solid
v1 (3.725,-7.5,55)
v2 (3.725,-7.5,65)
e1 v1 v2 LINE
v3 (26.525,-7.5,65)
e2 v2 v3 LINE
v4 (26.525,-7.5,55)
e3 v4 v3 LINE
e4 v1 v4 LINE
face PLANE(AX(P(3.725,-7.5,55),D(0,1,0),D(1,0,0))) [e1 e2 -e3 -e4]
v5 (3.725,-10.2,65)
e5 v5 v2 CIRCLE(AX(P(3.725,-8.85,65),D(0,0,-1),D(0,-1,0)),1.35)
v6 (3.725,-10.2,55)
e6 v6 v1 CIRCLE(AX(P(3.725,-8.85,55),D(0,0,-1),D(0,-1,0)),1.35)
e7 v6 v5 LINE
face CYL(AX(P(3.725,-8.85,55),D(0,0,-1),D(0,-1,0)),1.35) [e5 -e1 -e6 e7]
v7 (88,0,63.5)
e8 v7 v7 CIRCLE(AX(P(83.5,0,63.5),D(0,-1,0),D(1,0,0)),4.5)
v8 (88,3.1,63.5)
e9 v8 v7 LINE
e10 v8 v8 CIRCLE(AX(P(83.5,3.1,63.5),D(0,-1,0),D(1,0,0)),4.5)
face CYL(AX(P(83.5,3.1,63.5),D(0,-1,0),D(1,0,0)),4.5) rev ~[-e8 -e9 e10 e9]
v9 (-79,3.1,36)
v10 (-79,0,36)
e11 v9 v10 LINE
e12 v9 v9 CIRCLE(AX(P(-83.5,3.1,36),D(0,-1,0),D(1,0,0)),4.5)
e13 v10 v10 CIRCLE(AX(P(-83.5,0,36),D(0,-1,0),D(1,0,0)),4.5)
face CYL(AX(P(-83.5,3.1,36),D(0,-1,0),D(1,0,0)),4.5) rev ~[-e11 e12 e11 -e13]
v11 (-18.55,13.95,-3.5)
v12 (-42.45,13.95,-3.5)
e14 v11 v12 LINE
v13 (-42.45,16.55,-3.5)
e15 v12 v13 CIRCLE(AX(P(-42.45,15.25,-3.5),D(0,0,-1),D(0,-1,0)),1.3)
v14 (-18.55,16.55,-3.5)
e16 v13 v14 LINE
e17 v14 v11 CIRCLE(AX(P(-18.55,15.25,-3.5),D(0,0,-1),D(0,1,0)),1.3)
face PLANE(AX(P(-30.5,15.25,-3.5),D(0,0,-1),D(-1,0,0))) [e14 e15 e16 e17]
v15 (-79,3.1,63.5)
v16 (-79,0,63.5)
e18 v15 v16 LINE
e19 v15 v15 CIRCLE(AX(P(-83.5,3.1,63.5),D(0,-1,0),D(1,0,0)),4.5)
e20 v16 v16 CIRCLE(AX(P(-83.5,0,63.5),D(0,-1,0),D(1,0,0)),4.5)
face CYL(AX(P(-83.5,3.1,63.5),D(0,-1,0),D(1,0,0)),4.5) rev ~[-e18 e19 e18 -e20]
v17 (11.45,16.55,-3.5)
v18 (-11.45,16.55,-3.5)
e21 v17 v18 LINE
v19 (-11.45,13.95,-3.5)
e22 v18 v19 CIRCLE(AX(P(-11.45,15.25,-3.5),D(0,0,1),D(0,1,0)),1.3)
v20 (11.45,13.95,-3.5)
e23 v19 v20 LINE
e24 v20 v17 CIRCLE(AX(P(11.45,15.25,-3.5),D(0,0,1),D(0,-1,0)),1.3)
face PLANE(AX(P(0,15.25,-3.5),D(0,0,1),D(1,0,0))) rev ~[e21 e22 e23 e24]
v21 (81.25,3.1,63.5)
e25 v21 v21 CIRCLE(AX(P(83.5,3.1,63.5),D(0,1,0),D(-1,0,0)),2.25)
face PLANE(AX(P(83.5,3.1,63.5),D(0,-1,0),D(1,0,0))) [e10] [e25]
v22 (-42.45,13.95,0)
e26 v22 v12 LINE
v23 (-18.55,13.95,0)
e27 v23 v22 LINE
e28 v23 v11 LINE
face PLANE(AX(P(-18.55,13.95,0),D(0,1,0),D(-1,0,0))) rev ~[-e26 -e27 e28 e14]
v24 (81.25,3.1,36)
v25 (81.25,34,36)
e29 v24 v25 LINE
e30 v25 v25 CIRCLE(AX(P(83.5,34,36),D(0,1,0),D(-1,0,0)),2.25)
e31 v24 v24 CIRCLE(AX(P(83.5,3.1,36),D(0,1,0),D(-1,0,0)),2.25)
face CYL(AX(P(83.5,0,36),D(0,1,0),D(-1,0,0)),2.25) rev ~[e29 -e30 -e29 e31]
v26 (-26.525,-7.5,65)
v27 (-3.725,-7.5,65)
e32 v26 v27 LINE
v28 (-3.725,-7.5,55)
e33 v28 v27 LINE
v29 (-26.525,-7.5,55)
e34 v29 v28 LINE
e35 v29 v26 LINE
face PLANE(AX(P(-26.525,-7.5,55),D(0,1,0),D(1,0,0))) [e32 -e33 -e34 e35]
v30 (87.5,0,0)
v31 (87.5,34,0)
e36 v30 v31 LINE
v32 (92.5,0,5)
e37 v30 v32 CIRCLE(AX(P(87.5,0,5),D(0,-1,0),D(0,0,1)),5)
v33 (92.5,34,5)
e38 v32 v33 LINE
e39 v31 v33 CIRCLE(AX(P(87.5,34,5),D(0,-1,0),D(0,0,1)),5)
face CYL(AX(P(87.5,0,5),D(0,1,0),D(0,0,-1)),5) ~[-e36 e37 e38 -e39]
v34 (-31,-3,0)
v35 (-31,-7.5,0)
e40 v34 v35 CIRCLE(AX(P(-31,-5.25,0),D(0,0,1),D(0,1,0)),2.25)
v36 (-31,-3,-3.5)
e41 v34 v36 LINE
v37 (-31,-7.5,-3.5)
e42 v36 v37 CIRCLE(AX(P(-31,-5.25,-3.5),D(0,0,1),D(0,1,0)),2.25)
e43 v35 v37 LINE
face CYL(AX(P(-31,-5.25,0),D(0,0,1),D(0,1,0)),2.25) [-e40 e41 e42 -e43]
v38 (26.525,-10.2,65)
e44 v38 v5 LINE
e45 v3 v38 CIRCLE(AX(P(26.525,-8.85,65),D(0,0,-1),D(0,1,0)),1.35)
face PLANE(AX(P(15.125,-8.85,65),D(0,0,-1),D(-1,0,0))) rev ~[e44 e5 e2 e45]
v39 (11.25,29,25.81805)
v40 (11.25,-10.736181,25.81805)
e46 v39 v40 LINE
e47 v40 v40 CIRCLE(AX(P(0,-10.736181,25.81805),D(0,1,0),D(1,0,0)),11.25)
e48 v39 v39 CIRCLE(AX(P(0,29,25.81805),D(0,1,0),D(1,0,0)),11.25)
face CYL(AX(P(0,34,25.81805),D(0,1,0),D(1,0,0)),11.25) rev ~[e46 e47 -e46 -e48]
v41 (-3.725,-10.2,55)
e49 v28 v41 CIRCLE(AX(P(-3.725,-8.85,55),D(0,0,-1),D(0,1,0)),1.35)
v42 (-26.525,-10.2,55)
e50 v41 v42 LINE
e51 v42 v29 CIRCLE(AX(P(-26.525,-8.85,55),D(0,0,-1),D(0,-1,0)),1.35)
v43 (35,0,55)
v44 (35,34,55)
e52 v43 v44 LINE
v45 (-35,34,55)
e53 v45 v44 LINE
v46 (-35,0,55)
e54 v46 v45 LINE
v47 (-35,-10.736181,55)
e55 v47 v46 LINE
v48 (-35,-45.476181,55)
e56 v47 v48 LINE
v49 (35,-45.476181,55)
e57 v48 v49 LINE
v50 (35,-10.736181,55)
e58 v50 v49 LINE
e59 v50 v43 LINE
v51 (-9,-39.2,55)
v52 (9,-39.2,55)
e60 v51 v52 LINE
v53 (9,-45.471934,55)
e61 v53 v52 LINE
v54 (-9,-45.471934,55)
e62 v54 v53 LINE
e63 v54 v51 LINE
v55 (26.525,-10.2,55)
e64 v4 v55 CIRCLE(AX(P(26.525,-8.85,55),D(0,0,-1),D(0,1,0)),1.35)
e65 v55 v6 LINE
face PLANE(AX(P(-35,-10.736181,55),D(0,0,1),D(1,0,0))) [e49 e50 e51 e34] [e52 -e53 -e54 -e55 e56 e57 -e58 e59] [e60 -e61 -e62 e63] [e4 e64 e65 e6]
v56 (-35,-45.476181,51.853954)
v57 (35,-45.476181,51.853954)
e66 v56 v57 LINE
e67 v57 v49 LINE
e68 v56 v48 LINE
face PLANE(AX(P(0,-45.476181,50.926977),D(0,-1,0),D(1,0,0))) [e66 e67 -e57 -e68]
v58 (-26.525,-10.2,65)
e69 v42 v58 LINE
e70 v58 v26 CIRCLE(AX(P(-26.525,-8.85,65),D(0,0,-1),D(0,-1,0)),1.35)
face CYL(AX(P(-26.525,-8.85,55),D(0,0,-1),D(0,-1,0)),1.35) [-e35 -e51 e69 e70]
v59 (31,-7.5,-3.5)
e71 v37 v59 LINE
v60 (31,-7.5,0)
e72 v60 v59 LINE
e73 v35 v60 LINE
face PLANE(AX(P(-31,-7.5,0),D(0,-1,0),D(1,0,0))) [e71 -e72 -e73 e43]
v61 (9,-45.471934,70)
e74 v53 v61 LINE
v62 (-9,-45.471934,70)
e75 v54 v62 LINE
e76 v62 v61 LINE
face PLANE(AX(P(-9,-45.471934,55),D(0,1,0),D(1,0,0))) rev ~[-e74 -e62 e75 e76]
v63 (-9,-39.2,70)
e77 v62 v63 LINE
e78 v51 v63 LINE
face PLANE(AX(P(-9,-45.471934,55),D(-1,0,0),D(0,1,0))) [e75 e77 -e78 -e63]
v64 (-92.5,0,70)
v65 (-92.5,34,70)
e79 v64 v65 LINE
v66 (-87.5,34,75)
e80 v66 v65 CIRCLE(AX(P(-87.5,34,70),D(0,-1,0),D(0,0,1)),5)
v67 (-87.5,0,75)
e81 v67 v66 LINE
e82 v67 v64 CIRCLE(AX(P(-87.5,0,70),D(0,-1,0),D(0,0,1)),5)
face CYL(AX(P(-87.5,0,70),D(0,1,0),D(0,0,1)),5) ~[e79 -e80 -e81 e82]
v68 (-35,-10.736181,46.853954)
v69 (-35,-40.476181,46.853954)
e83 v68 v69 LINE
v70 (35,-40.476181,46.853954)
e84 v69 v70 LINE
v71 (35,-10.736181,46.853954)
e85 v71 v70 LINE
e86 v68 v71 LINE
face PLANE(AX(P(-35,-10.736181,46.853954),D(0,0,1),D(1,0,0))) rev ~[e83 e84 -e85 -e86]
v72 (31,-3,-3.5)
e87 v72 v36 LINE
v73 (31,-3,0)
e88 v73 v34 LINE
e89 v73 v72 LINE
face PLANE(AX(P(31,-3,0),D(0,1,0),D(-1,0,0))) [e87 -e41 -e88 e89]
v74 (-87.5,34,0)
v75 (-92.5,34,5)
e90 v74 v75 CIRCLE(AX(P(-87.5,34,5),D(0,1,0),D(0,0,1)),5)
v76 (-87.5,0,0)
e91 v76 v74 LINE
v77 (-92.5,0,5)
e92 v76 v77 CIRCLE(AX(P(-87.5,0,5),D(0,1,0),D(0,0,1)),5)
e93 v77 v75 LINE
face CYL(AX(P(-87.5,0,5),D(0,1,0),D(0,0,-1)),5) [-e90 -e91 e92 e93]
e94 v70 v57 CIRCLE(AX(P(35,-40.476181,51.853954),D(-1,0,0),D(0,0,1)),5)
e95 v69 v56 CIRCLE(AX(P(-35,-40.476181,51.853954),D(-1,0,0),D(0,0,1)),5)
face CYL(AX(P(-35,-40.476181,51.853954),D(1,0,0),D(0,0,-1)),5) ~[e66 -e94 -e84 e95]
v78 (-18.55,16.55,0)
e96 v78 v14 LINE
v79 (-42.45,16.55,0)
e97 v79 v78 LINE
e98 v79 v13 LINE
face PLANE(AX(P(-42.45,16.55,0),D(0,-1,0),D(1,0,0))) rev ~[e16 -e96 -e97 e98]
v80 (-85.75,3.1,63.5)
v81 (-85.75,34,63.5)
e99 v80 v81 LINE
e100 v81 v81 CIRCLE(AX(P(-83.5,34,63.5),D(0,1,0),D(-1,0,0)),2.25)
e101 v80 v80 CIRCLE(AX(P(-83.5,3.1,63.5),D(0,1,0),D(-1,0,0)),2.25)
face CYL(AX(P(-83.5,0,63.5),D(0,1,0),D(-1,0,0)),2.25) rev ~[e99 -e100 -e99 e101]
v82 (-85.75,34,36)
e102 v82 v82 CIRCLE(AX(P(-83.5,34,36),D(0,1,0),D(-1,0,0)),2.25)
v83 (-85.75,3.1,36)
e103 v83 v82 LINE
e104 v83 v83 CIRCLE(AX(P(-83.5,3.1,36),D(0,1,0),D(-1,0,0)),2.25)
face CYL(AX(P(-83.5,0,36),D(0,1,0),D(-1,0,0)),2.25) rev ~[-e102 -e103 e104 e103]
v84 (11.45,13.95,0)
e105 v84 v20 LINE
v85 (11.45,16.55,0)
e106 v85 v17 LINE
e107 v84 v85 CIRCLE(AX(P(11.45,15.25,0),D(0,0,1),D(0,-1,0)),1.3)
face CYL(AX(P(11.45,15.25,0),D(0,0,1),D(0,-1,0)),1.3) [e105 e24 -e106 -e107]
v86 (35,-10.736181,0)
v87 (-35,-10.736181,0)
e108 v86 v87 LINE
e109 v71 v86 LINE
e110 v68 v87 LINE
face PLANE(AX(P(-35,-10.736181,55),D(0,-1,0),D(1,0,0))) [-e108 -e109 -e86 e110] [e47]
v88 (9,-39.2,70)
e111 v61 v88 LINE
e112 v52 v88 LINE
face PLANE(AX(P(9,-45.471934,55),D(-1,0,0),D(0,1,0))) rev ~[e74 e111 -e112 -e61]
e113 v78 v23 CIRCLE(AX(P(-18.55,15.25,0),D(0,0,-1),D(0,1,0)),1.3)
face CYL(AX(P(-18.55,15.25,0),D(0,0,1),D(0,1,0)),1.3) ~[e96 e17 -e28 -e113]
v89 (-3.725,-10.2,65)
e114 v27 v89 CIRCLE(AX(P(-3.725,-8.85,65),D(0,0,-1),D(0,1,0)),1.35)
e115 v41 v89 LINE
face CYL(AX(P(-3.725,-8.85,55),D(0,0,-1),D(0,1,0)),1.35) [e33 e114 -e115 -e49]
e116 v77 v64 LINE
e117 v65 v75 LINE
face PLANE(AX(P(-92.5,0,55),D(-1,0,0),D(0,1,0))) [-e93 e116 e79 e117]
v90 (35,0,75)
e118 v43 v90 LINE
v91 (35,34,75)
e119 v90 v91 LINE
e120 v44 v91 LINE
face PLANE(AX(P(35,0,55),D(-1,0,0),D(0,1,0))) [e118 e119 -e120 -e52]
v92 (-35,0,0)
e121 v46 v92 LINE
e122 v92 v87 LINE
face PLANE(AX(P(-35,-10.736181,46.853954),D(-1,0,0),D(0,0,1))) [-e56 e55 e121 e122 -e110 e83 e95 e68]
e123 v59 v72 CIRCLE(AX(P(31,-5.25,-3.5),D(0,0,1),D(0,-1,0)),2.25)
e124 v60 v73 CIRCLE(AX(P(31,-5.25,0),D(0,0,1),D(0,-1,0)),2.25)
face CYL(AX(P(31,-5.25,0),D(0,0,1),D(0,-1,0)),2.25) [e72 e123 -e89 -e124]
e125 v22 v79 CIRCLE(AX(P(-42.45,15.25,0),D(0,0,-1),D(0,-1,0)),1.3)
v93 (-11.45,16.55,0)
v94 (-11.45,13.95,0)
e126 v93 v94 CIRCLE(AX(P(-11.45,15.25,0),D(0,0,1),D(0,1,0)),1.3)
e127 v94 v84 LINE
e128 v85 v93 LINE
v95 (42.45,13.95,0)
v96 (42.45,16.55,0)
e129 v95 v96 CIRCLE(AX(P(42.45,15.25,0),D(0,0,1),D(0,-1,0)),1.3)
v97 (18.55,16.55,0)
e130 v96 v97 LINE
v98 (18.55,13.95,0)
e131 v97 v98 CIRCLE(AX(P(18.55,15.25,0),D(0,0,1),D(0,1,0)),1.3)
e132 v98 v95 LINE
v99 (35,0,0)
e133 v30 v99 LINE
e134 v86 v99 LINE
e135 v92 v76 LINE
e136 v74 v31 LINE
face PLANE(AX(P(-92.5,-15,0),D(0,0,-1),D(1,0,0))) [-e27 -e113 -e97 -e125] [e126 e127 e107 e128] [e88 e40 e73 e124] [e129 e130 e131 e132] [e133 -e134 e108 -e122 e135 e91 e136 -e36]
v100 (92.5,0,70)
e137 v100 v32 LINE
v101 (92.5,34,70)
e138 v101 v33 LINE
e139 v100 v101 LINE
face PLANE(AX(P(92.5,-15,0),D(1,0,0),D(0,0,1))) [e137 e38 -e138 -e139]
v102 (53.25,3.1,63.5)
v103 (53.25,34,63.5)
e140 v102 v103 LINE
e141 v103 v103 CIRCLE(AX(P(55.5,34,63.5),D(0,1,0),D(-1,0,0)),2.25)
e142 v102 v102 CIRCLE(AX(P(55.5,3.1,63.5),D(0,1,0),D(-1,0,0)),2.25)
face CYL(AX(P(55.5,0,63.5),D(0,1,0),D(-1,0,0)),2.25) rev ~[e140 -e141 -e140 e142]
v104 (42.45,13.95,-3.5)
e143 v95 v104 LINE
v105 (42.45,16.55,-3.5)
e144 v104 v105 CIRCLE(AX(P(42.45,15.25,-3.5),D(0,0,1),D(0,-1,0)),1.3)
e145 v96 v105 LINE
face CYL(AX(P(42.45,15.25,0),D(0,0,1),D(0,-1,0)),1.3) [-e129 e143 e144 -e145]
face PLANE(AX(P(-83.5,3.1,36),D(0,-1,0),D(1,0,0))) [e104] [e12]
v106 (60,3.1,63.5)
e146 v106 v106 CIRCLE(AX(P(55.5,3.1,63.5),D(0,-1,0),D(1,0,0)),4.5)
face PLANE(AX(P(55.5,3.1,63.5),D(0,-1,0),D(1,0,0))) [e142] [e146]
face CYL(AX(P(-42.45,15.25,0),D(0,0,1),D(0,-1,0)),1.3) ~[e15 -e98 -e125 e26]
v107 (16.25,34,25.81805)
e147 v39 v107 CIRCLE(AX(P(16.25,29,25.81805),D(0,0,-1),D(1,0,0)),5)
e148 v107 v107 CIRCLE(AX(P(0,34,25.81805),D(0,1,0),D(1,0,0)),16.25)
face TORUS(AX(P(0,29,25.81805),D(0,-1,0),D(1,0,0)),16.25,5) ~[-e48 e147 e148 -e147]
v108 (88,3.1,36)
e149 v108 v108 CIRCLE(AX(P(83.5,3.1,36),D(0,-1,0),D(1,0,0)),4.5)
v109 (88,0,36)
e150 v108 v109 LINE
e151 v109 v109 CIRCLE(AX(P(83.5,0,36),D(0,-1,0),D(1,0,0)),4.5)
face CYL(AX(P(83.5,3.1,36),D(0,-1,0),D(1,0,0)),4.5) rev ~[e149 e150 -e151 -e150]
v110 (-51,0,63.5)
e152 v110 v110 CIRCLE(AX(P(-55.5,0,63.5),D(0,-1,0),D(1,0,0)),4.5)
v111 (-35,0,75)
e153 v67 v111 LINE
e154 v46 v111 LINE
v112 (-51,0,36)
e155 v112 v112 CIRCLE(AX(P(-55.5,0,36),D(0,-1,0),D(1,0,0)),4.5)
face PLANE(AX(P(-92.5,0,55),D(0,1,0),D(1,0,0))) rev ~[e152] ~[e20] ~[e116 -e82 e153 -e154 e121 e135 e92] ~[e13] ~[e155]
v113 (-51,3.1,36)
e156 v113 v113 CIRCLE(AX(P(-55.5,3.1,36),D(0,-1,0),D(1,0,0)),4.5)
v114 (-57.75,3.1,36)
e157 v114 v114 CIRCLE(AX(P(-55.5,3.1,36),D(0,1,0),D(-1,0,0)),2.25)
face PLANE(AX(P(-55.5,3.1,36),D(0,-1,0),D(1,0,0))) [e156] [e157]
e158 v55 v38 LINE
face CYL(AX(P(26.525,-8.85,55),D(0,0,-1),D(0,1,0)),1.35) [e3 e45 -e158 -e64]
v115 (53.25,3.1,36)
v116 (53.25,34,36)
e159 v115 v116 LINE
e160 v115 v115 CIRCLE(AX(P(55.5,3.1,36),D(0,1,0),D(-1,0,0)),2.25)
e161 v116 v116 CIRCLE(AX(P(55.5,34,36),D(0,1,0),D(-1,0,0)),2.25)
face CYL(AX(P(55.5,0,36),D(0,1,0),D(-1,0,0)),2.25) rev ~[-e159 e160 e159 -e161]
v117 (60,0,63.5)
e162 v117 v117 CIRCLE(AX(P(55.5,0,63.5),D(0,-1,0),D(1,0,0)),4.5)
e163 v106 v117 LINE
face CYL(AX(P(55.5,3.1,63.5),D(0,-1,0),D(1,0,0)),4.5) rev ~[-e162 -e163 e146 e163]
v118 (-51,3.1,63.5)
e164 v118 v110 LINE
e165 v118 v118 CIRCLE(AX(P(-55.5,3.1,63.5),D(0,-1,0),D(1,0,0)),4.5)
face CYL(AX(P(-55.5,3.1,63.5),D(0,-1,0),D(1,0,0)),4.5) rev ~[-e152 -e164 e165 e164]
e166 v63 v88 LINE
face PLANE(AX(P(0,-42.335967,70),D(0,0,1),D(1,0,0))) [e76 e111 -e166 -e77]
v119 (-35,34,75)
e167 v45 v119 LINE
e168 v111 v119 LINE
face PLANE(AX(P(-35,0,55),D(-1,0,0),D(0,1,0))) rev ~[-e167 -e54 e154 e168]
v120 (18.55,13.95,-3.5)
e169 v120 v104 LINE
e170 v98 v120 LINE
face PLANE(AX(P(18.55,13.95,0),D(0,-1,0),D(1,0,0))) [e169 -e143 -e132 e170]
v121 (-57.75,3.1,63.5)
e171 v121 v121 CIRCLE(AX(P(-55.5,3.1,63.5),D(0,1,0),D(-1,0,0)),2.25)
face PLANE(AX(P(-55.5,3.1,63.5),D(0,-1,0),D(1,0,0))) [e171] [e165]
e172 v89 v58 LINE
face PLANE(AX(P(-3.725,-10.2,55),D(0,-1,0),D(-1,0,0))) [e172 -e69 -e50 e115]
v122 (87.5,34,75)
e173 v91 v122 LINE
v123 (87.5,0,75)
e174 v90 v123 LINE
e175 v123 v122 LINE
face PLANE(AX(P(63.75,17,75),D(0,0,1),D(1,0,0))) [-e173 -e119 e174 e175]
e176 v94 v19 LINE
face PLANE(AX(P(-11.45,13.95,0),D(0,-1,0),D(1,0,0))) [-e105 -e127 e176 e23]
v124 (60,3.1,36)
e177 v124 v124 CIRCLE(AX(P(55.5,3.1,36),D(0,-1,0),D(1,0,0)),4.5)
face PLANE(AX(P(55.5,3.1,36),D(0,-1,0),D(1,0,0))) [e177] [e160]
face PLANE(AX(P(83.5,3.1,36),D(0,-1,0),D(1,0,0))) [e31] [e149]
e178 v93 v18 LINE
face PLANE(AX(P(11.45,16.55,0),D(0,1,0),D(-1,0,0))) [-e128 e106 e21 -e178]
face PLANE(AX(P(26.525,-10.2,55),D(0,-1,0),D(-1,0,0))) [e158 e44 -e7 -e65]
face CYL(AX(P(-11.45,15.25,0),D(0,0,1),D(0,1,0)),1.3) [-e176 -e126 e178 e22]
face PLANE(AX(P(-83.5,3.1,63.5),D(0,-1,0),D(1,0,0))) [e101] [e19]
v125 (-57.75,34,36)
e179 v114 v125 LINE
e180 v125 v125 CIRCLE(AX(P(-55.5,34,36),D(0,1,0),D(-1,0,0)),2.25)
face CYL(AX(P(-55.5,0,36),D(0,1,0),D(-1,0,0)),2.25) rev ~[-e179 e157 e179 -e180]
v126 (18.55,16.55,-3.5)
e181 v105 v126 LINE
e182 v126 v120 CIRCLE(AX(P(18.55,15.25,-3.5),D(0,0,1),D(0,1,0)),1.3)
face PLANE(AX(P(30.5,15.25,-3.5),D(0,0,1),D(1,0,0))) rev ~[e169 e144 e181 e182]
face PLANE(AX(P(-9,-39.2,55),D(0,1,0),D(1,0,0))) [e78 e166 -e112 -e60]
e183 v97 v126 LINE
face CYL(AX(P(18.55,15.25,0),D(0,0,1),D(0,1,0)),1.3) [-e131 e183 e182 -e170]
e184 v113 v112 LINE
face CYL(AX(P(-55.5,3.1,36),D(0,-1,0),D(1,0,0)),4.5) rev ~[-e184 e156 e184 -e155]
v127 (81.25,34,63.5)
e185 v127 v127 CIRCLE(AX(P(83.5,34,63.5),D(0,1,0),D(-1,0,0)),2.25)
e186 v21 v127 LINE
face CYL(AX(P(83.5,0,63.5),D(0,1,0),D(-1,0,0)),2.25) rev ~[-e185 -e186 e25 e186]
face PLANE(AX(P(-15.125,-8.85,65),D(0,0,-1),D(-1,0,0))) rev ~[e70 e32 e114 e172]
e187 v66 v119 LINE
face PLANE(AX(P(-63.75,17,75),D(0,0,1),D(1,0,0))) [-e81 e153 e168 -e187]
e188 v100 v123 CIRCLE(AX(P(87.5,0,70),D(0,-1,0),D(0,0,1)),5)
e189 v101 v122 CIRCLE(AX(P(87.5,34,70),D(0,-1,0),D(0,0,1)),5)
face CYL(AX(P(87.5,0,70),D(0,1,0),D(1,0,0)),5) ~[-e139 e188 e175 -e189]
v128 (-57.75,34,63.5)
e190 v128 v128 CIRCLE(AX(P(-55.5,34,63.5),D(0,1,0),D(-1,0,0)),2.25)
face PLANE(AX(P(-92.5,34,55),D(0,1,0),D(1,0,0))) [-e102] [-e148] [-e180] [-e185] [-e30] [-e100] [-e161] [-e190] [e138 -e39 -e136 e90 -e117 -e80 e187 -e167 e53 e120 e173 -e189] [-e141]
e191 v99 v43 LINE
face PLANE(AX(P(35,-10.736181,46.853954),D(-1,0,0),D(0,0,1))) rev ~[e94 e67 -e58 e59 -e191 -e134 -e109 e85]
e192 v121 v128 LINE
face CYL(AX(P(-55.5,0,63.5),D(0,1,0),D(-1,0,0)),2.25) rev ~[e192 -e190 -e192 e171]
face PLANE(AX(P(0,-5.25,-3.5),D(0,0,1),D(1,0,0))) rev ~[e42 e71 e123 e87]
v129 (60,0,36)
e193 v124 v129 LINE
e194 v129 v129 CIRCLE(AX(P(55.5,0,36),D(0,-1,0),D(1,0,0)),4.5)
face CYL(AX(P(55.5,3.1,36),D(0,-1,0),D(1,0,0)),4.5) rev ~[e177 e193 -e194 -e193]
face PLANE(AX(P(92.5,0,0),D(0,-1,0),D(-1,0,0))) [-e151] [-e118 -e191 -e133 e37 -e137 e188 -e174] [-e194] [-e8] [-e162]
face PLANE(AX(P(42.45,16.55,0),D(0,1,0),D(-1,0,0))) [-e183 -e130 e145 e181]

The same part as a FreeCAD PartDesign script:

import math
import FreeCAD as App
import Part
import Sketcher
from FreeCAD import Vector
Q = App.Units.Quantity


def edges_at(feature, points):
    """Names of the edges that pass closest to the given points."""
    edges = feature.Shape.Edges
    near = lambda p: min(range(len(edges)), key=lambda i: edges[i].distToShape(Part.Vertex(*p))[0])
    return sorted({f"Edge{near(p) + 1}" for p in points})


def add_polygon(sketch, points):
    """Adds a closed chain of lines whose ends are joined by coincident constraints."""
    first, n = sketch.GeometryCount, len(points)
    for a, b in zip(points, points[1:] + points[:1]):
        sketch.addGeometry(Part.LineSegment(App.Vector(*a, 0), App.Vector(*b, 0)), False)
    for i in range(n):
        sketch.addConstraint(Sketcher.Constraint("Coincident", first + i, 2, first + (i + 1) % n, 1))

doc = App.newDocument("Part")
params = doc.addObject("Spreadsheet::Sheet", "Params")
for row, (alias, value) in enumerate([
    ("sketch1_width", "185 mm"),
    ("sketch1_height", "55 mm"),
    ("pad1_length", "49 mm"),
    ("sketch2_radius", "1.35 mm"),
    ("sketch2_width", "22.8 mm"),
    ("pad2_length", "10 mm"),
    ("sketch3_height", "15 mm"),
    ("sketch3_width", "57.5 mm"),
    ("sketch4_height", "15 mm"),
    ("sketch4_width", "57.5 mm"),
    ("sketch5_radius", "1.35 mm"),
    ("sketch5_width", "22.8 mm"),
    ("pad3_length", "10 mm"),
    ("sketch6_radius", "1.3 mm"),
    ("sketch6_width", "22.9 mm"),
    ("pad4_length", "3.5 mm"),
    ("sketch7_width", "62 mm"),
    ("sketch7_radius", "2.25 mm"),
    ("pad5_length", "3.5 mm"),
    ("sketch8_radius", "1.3 mm"),
    ("sketch8_width", "23.9 mm"),
    ("pad6_length", "3.5 mm"),
    ("sketch9_width", "70 mm"),
    ("sketch10_height", "34 mm"),
    ("sketch10_width", "57.5 mm"),
    ("pad7_length", "20 mm"),
    ("sketch11_diameter", "4.5 mm"),
    ("hole_diameter", "4.5 mm"),
    ("hole_cbore_diameter", "9 mm"),
    ("hole_cbore_depth", "3.1 mm"),
    ("sketch12_width", "70 mm"),
    ("pad8_length", "34.74 mm"),
    ("sketch13_width", "18 mm"),
    ("pad9_length", "15 mm"),
    ("fillet_radius", "5 mm"),
    ("sketch14_diameter", "22.5 mm"),
    ("fillet2_radius", "5 mm"),
], start=1):
    params.set(f"A{row}", alias)
    params.set(f"B{row}", "=" + value)
    params.setAlias(f"B{row}", alias)

body = doc.addObject("PartDesign::Body", "Body")

# Sketch on XZ plane
sketch1 = body.newObject("Sketcher::SketchObject", "Sketch")
sketch1.AttachmentSupport = (doc.getObject("XZ_Plane"), [""])
sketch1.MapMode = "FlatFace"
sketch1.AttachmentOffset = App.Placement(Vector(0, 0, 15), App.Rotation())
add_polygon(sketch1, [(-92, 55), (-92, 0), (92, 0), (92, 55)])  # lines 0-3
sketch1.addConstraint(Sketcher.Constraint("Vertical", 0))
sketch1.addConstraint(Sketcher.Constraint("Horizontal", 1))
sketch1.addConstraint(Sketcher.Constraint("Vertical", 2))
sketch1.addConstraint(Sketcher.Constraint("Horizontal", 3))
sketch1.addConstraint(Sketcher.Constraint("Symmetric", 0, 2, 1, 2, -1, 1))
sketch1.addConstraint(Sketcher.Constraint("DistanceX", 1, 1, 1, 2, Q("185 mm")))
sketch1.addConstraint(Sketcher.Constraint("DistanceY", 0, 2, 0, 1, Q("55 mm")))
sketch1.setExpression("Constraints[9]", "Params.sketch1_width")
sketch1.setExpression("Constraints[10]", "Params.sketch1_height")
pad1 = body.newObject("PartDesign::Pad", "Pad")
pad1.Profile = sketch1
pad1.setExpression("Length", "Params.pad1_length")
pad1.Reversed = True

# Sketch on XY plane
sketch2 = body.newObject("Sketcher::SketchObject", "Sketch001")
sketch2.AttachmentSupport = (doc.getObject("XY_Plane"), [""])
sketch2.MapMode = "FlatFace"
sketch2.AttachmentOffset = App.Placement(Vector(0, 0, 55), App.Rotation())
sketch2.addGeometry(Part.LineSegment(Vector(3.7, -10.2, 0), Vector(26.5, -10.2, 0)), False)
sketch2.addGeometry(Part.ArcOfCircle(Part.Circle(Vector(26.5, -8.8, 0), Vector(0, 0, 1), 1.4), math.radians(-90), math.radians(90)), False)
sketch2.addGeometry(Part.LineSegment(Vector(26.5, -7.5, 0), Vector(3.7, -7.5, 0)), False)
sketch2.addGeometry(Part.ArcOfCircle(Part.Circle(Vector(3.7, -8.8, 0), Vector(0, 0, 1), 1.4), math.radians(90), math.radians(270)), False)
sketch2.addConstraint(Sketcher.Constraint("Tangent", 0, 2, 1, 1))
sketch2.addConstraint(Sketcher.Constraint("Tangent", 1, 2, 2, 1))
sketch2.addConstraint(Sketcher.Constraint("Tangent", 2, 2, 3, 1))
sketch2.addConstraint(Sketcher.Constraint("Tangent", 3, 2, 0, 1))
sketch2.addConstraint(Sketcher.Constraint("Horizontal", 0))
sketch2.addConstraint(Sketcher.Constraint("Horizontal", 2))
sketch2.addConstraint(Sketcher.Constraint("Radius", 1, Q("1.35 mm")))
sketch2.addConstraint(Sketcher.Constraint("DistanceX", 0, 1, 0, 2, Q("22.8 mm")))
sketch2.addConstraint(Sketcher.Constraint("DistanceY", 0, 2, -1, 1, Q("10.2 mm")))
sketch2.addConstraint(Sketcher.Constraint("DistanceX", -1, 1, 1, 3, Q("26.525 mm")))
sketch2.setExpression("Constraints[6]", "Params.sketch2_radius")
sketch2.setExpression("Constraints[7]", "Params.sketch2_width")
pad2 = body.newObject("PartDesign::Pad", "Pad001")
pad2.Profile = sketch2
pad2.setExpression("Length", "Params.pad2_length")

# Sketch on XY plane
sketch3 = body.newObject("Sketcher::SketchObject", "Sketch002")
sketch3.AttachmentSupport = (doc.getObject("XY_Plane"), [""])
sketch3.MapMode = "FlatFace"
add_polygon(sketch3, [(92, 0), (92, -15), (35, -15), (35, 0)])  # lines 0-3
sketch3.addConstraint(Sketcher.Constraint("Vertical", 0))
sketch3.addConstraint(Sketcher.Constraint("Horizontal", 1))
sketch3.addConstraint(Sketcher.Constraint("Vertical", 2))
sketch3.addConstraint(Sketcher.Constraint("Horizontal", 3))
sketch3.addConstraint(Sketcher.Constraint("PointOnObject", 2, 2, -1))
sketch3.addConstraint(Sketcher.Constraint("DistanceY", 0, 2, 0, 1, Q("15 mm")))
sketch3.addConstraint(Sketcher.Constraint("DistanceX", 1, 2, 1, 1, Q("57.5 mm")))
sketch3.addConstraint(Sketcher.Constraint("DistanceX", -1, 1, 1, 2, Q("35 mm")))
sketch3.setExpression("Constraints[9]", "Params.sketch3_height")
sketch3.setExpression("Constraints[10]", "Params.sketch3_width")
pocket1 = body.newObject("PartDesign::Pocket", "Pocket")
pocket1.Profile = sketch3
pocket1.Type = "ThroughAll"
pocket1.Reversed = True

# Sketch on XY plane
sketch4 = body.newObject("Sketcher::SketchObject", "Sketch003")
sketch4.AttachmentSupport = (doc.getObject("XY_Plane"), [""])
sketch4.MapMode = "FlatFace"
sketch4.AttachmentOffset = App.Placement(Vector(0, 0, 55), App.Rotation())
add_polygon(sketch4, [(-92, 0), (-92, -15), (-35, -15), (-35, 0)])  # lines 0-3
sketch4.addConstraint(Sketcher.Constraint("Vertical", 0))
sketch4.addConstraint(Sketcher.Constraint("Horizontal", 1))
sketch4.addConstraint(Sketcher.Constraint("Vertical", 2))
sketch4.addConstraint(Sketcher.Constraint("Horizontal", 3))
sketch4.addConstraint(Sketcher.Constraint("PointOnObject", 2, 2, -1))
sketch4.addConstraint(Sketcher.Constraint("DistanceY", 0, 2, 0, 1, Q("15 mm")))
sketch4.addConstraint(Sketcher.Constraint("DistanceX", 1, 1, 1, 2, Q("57.5 mm")))
sketch4.addConstraint(Sketcher.Constraint("DistanceX", 1, 2, -1, 1, Q("35 mm")))
sketch4.setExpression("Constraints[9]", "Params.sketch4_height")
sketch4.setExpression("Constraints[10]", "Params.sketch4_width")
pocket2 = body.newObject("PartDesign::Pocket", "Pocket001")
pocket2.Profile = sketch4
pocket2.Type = "ThroughAll"

# Sketch on XY plane
sketch5 = body.newObject("Sketcher::SketchObject", "Sketch004")
sketch5.AttachmentSupport = (doc.getObject("XY_Plane"), [""])
sketch5.MapMode = "FlatFace"
sketch5.AttachmentOffset = App.Placement(Vector(0, 0, 55), App.Rotation())
sketch5.addGeometry(Part.LineSegment(Vector(-3.7, -7.5, 0), Vector(-26.5, -7.5, 0)), False)
sketch5.addGeometry(Part.ArcOfCircle(Part.Circle(Vector(-26.5, -8.8, 0), Vector(0, 0, 1), 1.4), math.radians(90), math.radians(270)), False)
sketch5.addGeometry(Part.LineSegment(Vector(-26.5, -10.2, 0), Vector(-3.7, -10.2, 0)), False)
sketch5.addGeometry(Part.ArcOfCircle(Part.Circle(Vector(-3.7, -8.8, 0), Vector(0, 0, 1), 1.4), math.radians(-90), math.radians(90)), False)
sketch5.addConstraint(Sketcher.Constraint("Tangent", 0, 2, 1, 1))
sketch5.addConstraint(Sketcher.Constraint("Tangent", 1, 2, 2, 1))
sketch5.addConstraint(Sketcher.Constraint("Tangent", 2, 2, 3, 1))
sketch5.addConstraint(Sketcher.Constraint("Tangent", 3, 2, 0, 1))
sketch5.addConstraint(Sketcher.Constraint("Horizontal", 0))
sketch5.addConstraint(Sketcher.Constraint("Horizontal", 2))
sketch5.addConstraint(Sketcher.Constraint("Radius", 1, Q("1.35 mm")))
sketch5.addConstraint(Sketcher.Constraint("DistanceX", 0, 2, 0, 1, Q("22.8 mm")))
sketch5.addConstraint(Sketcher.Constraint("DistanceY", 0, 2, -1, 1, Q("7.5 mm")))
sketch5.addConstraint(Sketcher.Constraint("DistanceX", 1, 3, -1, 1, Q("26.525 mm")))
sketch5.setExpression("Constraints[6]", "Params.sketch5_radius")
sketch5.setExpression("Constraints[7]", "Params.sketch5_width")
pad3 = body.newObject("PartDesign::Pad", "Pad002")
pad3.Profile = sketch5
pad3.setExpression("Length", "Params.pad3_length")

# Sketch on XY plane
sketch6 = body.newObject("Sketcher::SketchObject", "Sketch005")
sketch6.AttachmentSupport = (doc.getObject("XY_Plane"), [""])
sketch6.MapMode = "FlatFace"
sketch6.addGeometry(Part.LineSegment(Vector(-11.4, 16.6, 0), Vector(11.4, 16.6, 0)), False)
sketch6.addGeometry(Part.ArcOfCircle(Part.Circle(Vector(11.4, 15.2, 0), Vector(0, 0, 1), 1.3), math.radians(-90), math.radians(90)), False)
sketch6.addGeometry(Part.LineSegment(Vector(11.4, 13.9, 0), Vector(-11.4, 13.9, 0)), False)
sketch6.addGeometry(Part.ArcOfCircle(Part.Circle(Vector(-11.4, 15.2, 0), Vector(0, 0, 1), 1.3), math.radians(90), math.radians(270)), False)
sketch6.addConstraint(Sketcher.Constraint("Tangent", 0, 2, 1, 2))
sketch6.addConstraint(Sketcher.Constraint("Tangent", 1, 1, 2, 1))
sketch6.addConstraint(Sketcher.Constraint("Tangent", 2, 2, 3, 2))
sketch6.addConstraint(Sketcher.Constraint("Tangent", 3, 1, 0, 1))
sketch6.addConstraint(Sketcher.Constraint("Horizontal", 0))
sketch6.addConstraint(Sketcher.Constraint("Horizontal", 2))
sketch6.addConstraint(Sketcher.Constraint("Radius", 1, Q("1.3 mm")))
sketch6.addConstraint(Sketcher.Constraint("DistanceX", 0, 1, 0, 2, Q("22.9 mm")))
sketch6.addConstraint(Sketcher.Constraint("DistanceX", -1, 1, 1, 3, Q("11.45 mm")))
sketch6.addConstraint(Sketcher.Constraint("DistanceY", -1, 1, 1, 3, Q("15.25 mm")))
sketch6.setExpression("Constraints[6]", "Params.sketch6_radius")
sketch6.setExpression("Constraints[7]", "Params.sketch6_width")
pad4 = body.newObject("PartDesign::Pad", "Pad003")
pad4.Profile = sketch6
pad4.setExpression("Length", "Params.pad4_length")
pad4.Reversed = True

# Sketch on XY plane
sketch7 = body.newObject("Sketcher::SketchObject", "Sketch006")
sketch7.AttachmentSupport = (doc.getObject("XY_Plane"), [""])
sketch7.MapMode = "FlatFace"
sketch7.addGeometry(Part.LineSegment(Vector(-31, -3, 0), Vector(31, -3, 0)), False)
sketch7.addGeometry(Part.ArcOfCircle(Part.Circle(Vector(31, -5.2, 0), Vector(0, 0, 1), 2.2), math.radians(-90), math.radians(90)), False)
sketch7.addGeometry(Part.LineSegment(Vector(31, -7.5, 0), Vector(-31, -7.5, 0)), False)
sketch7.addGeometry(Part.ArcOfCircle(Part.Circle(Vector(-31, -5.2, 0), Vector(0, 0, 1), 2.2), math.radians(90), math.radians(270)), False)
sketch7.addConstraint(Sketcher.Constraint("Tangent", 0, 2, 1, 2))
sketch7.addConstraint(Sketcher.Constraint("Tangent", 1, 1, 2, 1))
sketch7.addConstraint(Sketcher.Constraint("Tangent", 2, 2, 3, 2))
sketch7.addConstraint(Sketcher.Constraint("Tangent", 3, 1, 0, 1))
sketch7.addConstraint(Sketcher.Constraint("Horizontal", 0))
sketch7.addConstraint(Sketcher.Constraint("Horizontal", 2))
sketch7.addConstraint(Sketcher.Constraint("DistanceX", 0, 1, 0, 2, Q("62 mm")))
sketch7.addConstraint(Sketcher.Constraint("Radius", 1, Q("2.25 mm")))
sketch7.addConstraint(Sketcher.Constraint("DistanceX", -1, 1, 1, 3, Q("31 mm")))
sketch7.addConstraint(Sketcher.Constraint("DistanceY", 0, 2, -1, 1, Q("3 mm")))
sketch7.setExpression("Constraints[6]", "Params.sketch7_width")
sketch7.setExpression("Constraints[7]", "Params.sketch7_radius")
pad5 = body.newObject("PartDesign::Pad", "Pad004")
pad5.Profile = sketch7
pad5.setExpression("Length", "Params.pad5_length")
pad5.Reversed = True

# Sketch on XY plane
sketch8 = body.newObject("Sketcher::SketchObject", "Sketch007")
sketch8.AttachmentSupport = (doc.getObject("XY_Plane"), [""])
sketch8.MapMode = "FlatFace"
sketch8.addGeometry(Part.LineSegment(Vector(42.5, 13.9, 0), Vector(18.6, 13.9, 0)), False)
sketch8.addGeometry(Part.ArcOfCircle(Part.Circle(Vector(18.6, 15.2, 0), Vector(0, 0, 1), 1.3), math.radians(90), math.radians(270)), False)
sketch8.addGeometry(Part.LineSegment(Vector(18.6, 16.6, 0), Vector(42.5, 16.6, 0)), False)
sketch8.addGeometry(Part.ArcOfCircle(Part.Circle(Vector(42.5, 15.2, 0), Vector(0, 0, 1), 1.3), math.radians(-90), math.radians(90)), False)
sketch8.addGeometry(Part.LineSegment(Vector(-42.5, 16.6, 0), Vector(-18.6, 16.6, 0)), False)
sketch8.addGeometry(Part.ArcOfCircle(Part.Circle(Vector(-18.6, 15.2, 0), Vector(0, 0, 1), 1.3), math.radians(-90), math.radians(90)), False)
sketch8.addGeometry(Part.LineSegment(Vector(-18.6, 13.9, 0), Vector(-42.5, 13.9, 0)), False)
sketch8.addGeometry(Part.ArcOfCircle(Part.Circle(Vector(-42.5, 15.2, 0), Vector(0, 0, 1), 1.3), math.radians(90), math.radians(270)), False)
sketch8.addConstraint(Sketcher.Constraint("Tangent", 0, 2, 1, 2))
sketch8.addConstraint(Sketcher.Constraint("Tangent", 1, 1, 2, 1))
sketch8.addConstraint(Sketcher.Constraint("Tangent", 2, 2, 3, 2))
sketch8.addConstraint(Sketcher.Constraint("Tangent", 3, 1, 0, 1))
sketch8.addConstraint(Sketcher.Constraint("Tangent", 4, 2, 5, 2))
sketch8.addConstraint(Sketcher.Constraint("Tangent", 5, 1, 6, 1))
sketch8.addConstraint(Sketcher.Constraint("Tangent", 6, 2, 7, 2))
sketch8.addConstraint(Sketcher.Constraint("Tangent", 7, 1, 4, 1))
sketch8.addConstraint(Sketcher.Constraint("Horizontal", 0))
sketch8.addConstraint(Sketcher.Constraint("Horizontal", 2))
sketch8.addConstraint(Sketcher.Constraint("Horizontal", 4))
sketch8.addConstraint(Sketcher.Constraint("Horizontal", 6))
sketch8.addConstraint(Sketcher.Constraint("Equal", 3, 5))
sketch8.addConstraint(Sketcher.Constraint("Symmetric", 1, 3, 5, 3, -2))
sketch8.addConstraint(Sketcher.Constraint("Equal", 2, 4))
sketch8.addConstraint(Sketcher.Constraint("Radius", 1, Q("1.3 mm")))
sketch8.addConstraint(Sketcher.Constraint("DistanceX", 0, 2, 0, 1, Q("23.9 mm")))
sketch8.addConstraint(Sketcher.Constraint("DistanceX", 5, 3, 3, 3, Q("61 mm")))
sketch8.addConstraint(Sketcher.Constraint("DistanceY", -1, 1, 1, 3, Q("15.25 mm")))
sketch8.setExpression("Constraints[15]", "Params.sketch8_radius")
sketch8.setExpression("Constraints[16]", "Params.sketch8_width")
pad6 = body.newObject("PartDesign::Pad", "Pad005")
pad6.Profile = sketch8
pad6.setExpression("Length", "Params.pad6_length")
pad6.Reversed = True

# Sketch on XY plane
sketch9 = body.newObject("Sketcher::SketchObject", "Sketch008")
sketch9.AttachmentSupport = (doc.getObject("XY_Plane"), [""])
sketch9.MapMode = "FlatFace"
sketch9.AttachmentOffset = App.Placement(Vector(0, 0, 55), App.Rotation())
add_polygon(sketch9, [(-35, -10.7), (-35, -15), (35, -15), (35, -10.7)])  # lines 0-3
sketch9.addConstraint(Sketcher.Constraint("Vertical", 0))
sketch9.addConstraint(Sketcher.Constraint("Horizontal", 1))
sketch9.addConstraint(Sketcher.Constraint("Vertical", 2))
sketch9.addConstraint(Sketcher.Constraint("Horizontal", 3))
sketch9.addConstraint(Sketcher.Constraint("DistanceX", 1, 1, 1, 2, Q("70 mm")))
sketch9.addConstraint(Sketcher.Constraint("DistanceX", 0, 2, -1, 1, Q("35 mm")))
sketch9.addConstraint(Sketcher.Constraint("DistanceY", 0, 2, -1, 1, Q("15 mm")))
sketch9.addConstraint(Sketcher.Constraint("DistanceY", 0, 2, 0, 1, Q("4.263819 mm")))
sketch9.setExpression("Constraints[8]", "Params.sketch9_width")
pocket3 = body.newObject("PartDesign::Pocket", "Pocket002")
pocket3.Profile = sketch9
pocket3.Type = "ThroughAll"

# Sketch on XY plane
sketch10 = body.newObject("Sketcher::SketchObject", "Sketch009")
sketch10.AttachmentSupport = (doc.getObject("XY_Plane"), [""])
sketch10.MapMode = "FlatFace"
sketch10.AttachmentOffset = App.Placement(Vector(0, 0, 55), App.Rotation())
add_polygon(sketch10, [(-92, 34), (-92, 0), (-35, 0), (-35, 34)])  # lines 0-3
add_polygon(sketch10, [(35, 34), (35, 0), (92, 0), (92, 34)])  # lines 4-7
sketch10.addConstraint(Sketcher.Constraint("Vertical", 0))
sketch10.addConstraint(Sketcher.Constraint("Horizontal", 1))
sketch10.addConstraint(Sketcher.Constraint("Vertical", 2))
sketch10.addConstraint(Sketcher.Constraint("Horizontal", 3))
sketch10.addConstraint(Sketcher.Constraint("Vertical", 4))
sketch10.addConstraint(Sketcher.Constraint("Horizontal", 5))
sketch10.addConstraint(Sketcher.Constraint("Vertical", 6))
sketch10.addConstraint(Sketcher.Constraint("Horizontal", 7))
sketch10.addConstraint(Sketcher.Constraint("Symmetric", 1, 2, 4, 2, -1, 1))
sketch10.addConstraint(Sketcher.Constraint("Symmetric", 0, 2, 5, 2, -2))
sketch10.addConstraint(Sketcher.Constraint("Horizontal", 3, 2, 6, 2))
sketch10.addConstraint(Sketcher.Constraint("DistanceY", 0, 2, 0, 1, Q("34 mm")))
sketch10.addConstraint(Sketcher.Constraint("DistanceX", 1, 1, 1, 2, Q("57.5 mm")))
sketch10.addConstraint(Sketcher.Constraint("DistanceX", 1, 2, -1, 1, Q("35 mm")))
sketch10.setExpression("Constraints[19]", "Params.sketch10_height")
sketch10.setExpression("Constraints[20]", "Params.sketch10_width")
pad7 = body.newObject("PartDesign::Pad", "Pad006")
pad7.Profile = sketch10
pad7.setExpression("Length", "Params.pad7_length")

# Sketch on XZ plane
sketch11 = body.newObject("Sketcher::SketchObject", "Sketch010")
sketch11.AttachmentSupport = (doc.getObject("XZ_Plane"), [""])
sketch11.MapMode = "FlatFace"
sketch11.addGeometry(Part.Circle(Vector(-55.5, 63.5, 0), Vector(0, 0, 1), 2.2), False)
sketch11.addGeometry(Part.Circle(Vector(-83.5, 63.5, 0), Vector(0, 0, 1), 2.2), False)
sketch11.addGeometry(Part.Circle(Vector(-83.5, 36, 0), Vector(0, 0, 1), 2.2), False)
sketch11.addGeometry(Part.Circle(Vector(-55.5, 36, 0), Vector(0, 0, 1), 2.2), False)
sketch11.addGeometry(Part.Circle(Vector(55.5, 36, 0), Vector(0, 0, 1), 2.2), False)
sketch11.addGeometry(Part.Circle(Vector(83.5, 36, 0), Vector(0, 0, 1), 2.2), False)
sketch11.addGeometry(Part.Circle(Vector(83.5, 63.5, 0), Vector(0, 0, 1), 2.2), False)
sketch11.addGeometry(Part.Circle(Vector(55.5, 63.5, 0), Vector(0, 0, 1), 2.2), False)
sketch11.addConstraint(Sketcher.Constraint("Equal", 0, 1))
sketch11.addConstraint(Sketcher.Constraint("Equal", 1, 2))
sketch11.addConstraint(Sketcher.Constraint("Equal", 2, 3))
sketch11.addConstraint(Sketcher.Constraint("Equal", 3, 4))
sketch11.addConstraint(Sketcher.Constraint("Equal", 4, 5))
sketch11.addConstraint(Sketcher.Constraint("Equal", 5, 6))
sketch11.addConstraint(Sketcher.Constraint("Equal", 6, 7))
sketch11.addConstraint(Sketcher.Constraint("Symmetric", 3, 3, 4, 3, -2))
sketch11.addConstraint(Sketcher.Constraint("Symmetric", 2, 3, 5, 3, -2))
sketch11.addConstraint(Sketcher.Constraint("Symmetric", 1, 3, 6, 3, -2))
sketch11.addConstraint(Sketcher.Constraint("Symmetric", 0, 3, 7, 3, -2))
sketch11.addConstraint(Sketcher.Constraint("Horizontal", 0, 3, 1, 3))
sketch11.addConstraint(Sketcher.Constraint("Horizontal", 2, 3, 3, 3))
sketch11.addConstraint(Sketcher.Constraint("Vertical", 1, 3, 2, 3))
sketch11.addConstraint(Sketcher.Constraint("Vertical", 0, 3, 3, 3))
sketch11.addConstraint(Sketcher.Constraint("Diameter", 0, Q("4.5 mm")))
sketch11.addConstraint(Sketcher.Constraint("DistanceY", -1, 1, 2, 3, Q("36 mm")))
sketch11.addConstraint(Sketcher.Constraint("DistanceX", 1, 3, 0, 3, Q("28 mm")))
sketch11.addConstraint(Sketcher.Constraint("DistanceX", 3, 3, 4, 3, Q("111 mm")))
sketch11.addConstraint(Sketcher.Constraint("DistanceY", -1, 1, 0, 3, Q("63.5 mm")))
sketch11.setExpression("Constraints[15]", "Params.sketch11_diameter")
doc.recompute()
hole = body.newObject("PartDesign::Hole", "Hole")
hole.Profile = sketch11
hole.ThreadType = "None"
hole.setExpression("Diameter", "Params.hole_diameter")
hole.DepthType = "ThroughAll"
hole.HoleCutType = "Counterbore"
hole.setExpression("HoleCutDiameter", "Params.hole_cbore_diameter")
hole.setExpression("HoleCutDepth", "Params.hole_cbore_depth")

# Sketch on XZ plane
sketch12 = body.newObject("Sketcher::SketchObject", "Sketch011")
sketch12.AttachmentSupport = (doc.getObject("XZ_Plane"), [""])
sketch12.MapMode = "FlatFace"
sketch12.AttachmentOffset = App.Placement(Vector(0, 0, 10.736181), App.Rotation())
add_polygon(sketch12, [(-35, 55), (-35, 47), (35, 47), (35, 55)])  # lines 0-3
sketch12.addConstraint(Sketcher.Constraint("Vertical", 0))
sketch12.addConstraint(Sketcher.Constraint("Horizontal", 1))
sketch12.addConstraint(Sketcher.Constraint("Vertical", 2))
sketch12.addConstraint(Sketcher.Constraint("Horizontal", 3))
sketch12.addConstraint(Sketcher.Constraint("DistanceX", 1, 1, 1, 2, Q("70 mm")))
sketch12.addConstraint(Sketcher.Constraint("DistanceX", 0, 2, -1, 1, Q("35 mm")))
sketch12.addConstraint(Sketcher.Constraint("DistanceY", -1, 1, 2, 2, Q("55 mm")))
sketch12.addConstraint(Sketcher.Constraint("DistanceY", 0, 2, 0, 1, Q("8.146046 mm")))
sketch12.setExpression("Constraints[8]", "Params.sketch12_width")
pad8 = body.newObject("PartDesign::Pad", "Pad007")
pad8.Profile = sketch12
pad8.setExpression("Length", "Params.pad8_length")

# Sketch on XY plane
sketch13 = body.newObject("Sketcher::SketchObject", "Sketch012")
sketch13.AttachmentSupport = (doc.getObject("XY_Plane"), [""])
sketch13.MapMode = "FlatFace"
sketch13.AttachmentOffset = App.Placement(Vector(0, 0, 55), App.Rotation())
add_polygon(sketch13, [(-9, -39), (-9, -45), (9, -45), (9, -39)])  # lines 0-3
sketch13.addConstraint(Sketcher.Constraint("Vertical", 0))
sketch13.addConstraint(Sketcher.Constraint("Horizontal", 1))
sketch13.addConstraint(Sketcher.Constraint("Vertical", 2))
sketch13.addConstraint(Sketcher.Constraint("Horizontal", 3))
sketch13.addConstraint(Sketcher.Constraint("DistanceX", 1, 1, 1, 2, Q("18 mm")))
sketch13.addConstraint(Sketcher.Constraint("DistanceX", 0, 2, -1, 1, Q("9 mm")))
sketch13.addConstraint(Sketcher.Constraint("DistanceY", 2, 2, -1, 1, Q("39.2 mm")))
sketch13.addConstraint(Sketcher.Constraint("DistanceY", 0, 2, 0, 1, Q("6.271934 mm")))
sketch13.setExpression("Constraints[8]", "Params.sketch13_width")
pad9 = body.newObject("PartDesign::Pad", "Pad008")
pad9.Profile = sketch13
pad9.setExpression("Length", "Params.pad9_length")
doc.recompute()

fillet = body.newObject("PartDesign::Fillet", "Fillet")
fillet.Base = (pad9, edges_at(pad9, [
    (-92.5, 17, 75),
    (92.5, 17, 75),
    (0, -45.476, 46.854),
    (92.5, 17, 0),
    (-92.5, 17, 0),
]))
fillet.setExpression("Radius", "Params.fillet_radius")

# Sketch on XZ plane
sketch14 = body.newObject("Sketcher::SketchObject", "Sketch013")
sketch14.AttachmentSupport = (doc.getObject("XZ_Plane"), [""])
sketch14.MapMode = "FlatFace"
sketch14.AttachmentOffset = App.Placement(Vector(0, 0, -34), App.Rotation())
sketch14.addGeometry(Part.Circle(Vector(0, 26, 0), Vector(0, 0, 1), 11), False)
sketch14.addConstraint(Sketcher.Constraint("PointOnObject", 0, 3, -2))
sketch14.addConstraint(Sketcher.Constraint("Diameter", 0, Q("22.5 mm")))
sketch14.addConstraint(Sketcher.Constraint("DistanceY", -1, 1, 0, 3, Q("25.81805 mm")))
sketch14.setExpression("Constraints[1]", "Params.sketch14_diameter")
pocket4 = body.newObject("PartDesign::Pocket", "Pocket003")
pocket4.Profile = sketch14
pocket4.Type = "ThroughAll"
pocket4.Reversed = True
doc.recompute()

fillet2 = body.newObject("PartDesign::Fillet", "Fillet001")
fillet2.Base = (pocket4, edges_at(pocket4, [(-11.25, 34, 25.818)]))
fillet2.setExpression("Radius", "Params.fillet2_radius")

doc.recompute()
